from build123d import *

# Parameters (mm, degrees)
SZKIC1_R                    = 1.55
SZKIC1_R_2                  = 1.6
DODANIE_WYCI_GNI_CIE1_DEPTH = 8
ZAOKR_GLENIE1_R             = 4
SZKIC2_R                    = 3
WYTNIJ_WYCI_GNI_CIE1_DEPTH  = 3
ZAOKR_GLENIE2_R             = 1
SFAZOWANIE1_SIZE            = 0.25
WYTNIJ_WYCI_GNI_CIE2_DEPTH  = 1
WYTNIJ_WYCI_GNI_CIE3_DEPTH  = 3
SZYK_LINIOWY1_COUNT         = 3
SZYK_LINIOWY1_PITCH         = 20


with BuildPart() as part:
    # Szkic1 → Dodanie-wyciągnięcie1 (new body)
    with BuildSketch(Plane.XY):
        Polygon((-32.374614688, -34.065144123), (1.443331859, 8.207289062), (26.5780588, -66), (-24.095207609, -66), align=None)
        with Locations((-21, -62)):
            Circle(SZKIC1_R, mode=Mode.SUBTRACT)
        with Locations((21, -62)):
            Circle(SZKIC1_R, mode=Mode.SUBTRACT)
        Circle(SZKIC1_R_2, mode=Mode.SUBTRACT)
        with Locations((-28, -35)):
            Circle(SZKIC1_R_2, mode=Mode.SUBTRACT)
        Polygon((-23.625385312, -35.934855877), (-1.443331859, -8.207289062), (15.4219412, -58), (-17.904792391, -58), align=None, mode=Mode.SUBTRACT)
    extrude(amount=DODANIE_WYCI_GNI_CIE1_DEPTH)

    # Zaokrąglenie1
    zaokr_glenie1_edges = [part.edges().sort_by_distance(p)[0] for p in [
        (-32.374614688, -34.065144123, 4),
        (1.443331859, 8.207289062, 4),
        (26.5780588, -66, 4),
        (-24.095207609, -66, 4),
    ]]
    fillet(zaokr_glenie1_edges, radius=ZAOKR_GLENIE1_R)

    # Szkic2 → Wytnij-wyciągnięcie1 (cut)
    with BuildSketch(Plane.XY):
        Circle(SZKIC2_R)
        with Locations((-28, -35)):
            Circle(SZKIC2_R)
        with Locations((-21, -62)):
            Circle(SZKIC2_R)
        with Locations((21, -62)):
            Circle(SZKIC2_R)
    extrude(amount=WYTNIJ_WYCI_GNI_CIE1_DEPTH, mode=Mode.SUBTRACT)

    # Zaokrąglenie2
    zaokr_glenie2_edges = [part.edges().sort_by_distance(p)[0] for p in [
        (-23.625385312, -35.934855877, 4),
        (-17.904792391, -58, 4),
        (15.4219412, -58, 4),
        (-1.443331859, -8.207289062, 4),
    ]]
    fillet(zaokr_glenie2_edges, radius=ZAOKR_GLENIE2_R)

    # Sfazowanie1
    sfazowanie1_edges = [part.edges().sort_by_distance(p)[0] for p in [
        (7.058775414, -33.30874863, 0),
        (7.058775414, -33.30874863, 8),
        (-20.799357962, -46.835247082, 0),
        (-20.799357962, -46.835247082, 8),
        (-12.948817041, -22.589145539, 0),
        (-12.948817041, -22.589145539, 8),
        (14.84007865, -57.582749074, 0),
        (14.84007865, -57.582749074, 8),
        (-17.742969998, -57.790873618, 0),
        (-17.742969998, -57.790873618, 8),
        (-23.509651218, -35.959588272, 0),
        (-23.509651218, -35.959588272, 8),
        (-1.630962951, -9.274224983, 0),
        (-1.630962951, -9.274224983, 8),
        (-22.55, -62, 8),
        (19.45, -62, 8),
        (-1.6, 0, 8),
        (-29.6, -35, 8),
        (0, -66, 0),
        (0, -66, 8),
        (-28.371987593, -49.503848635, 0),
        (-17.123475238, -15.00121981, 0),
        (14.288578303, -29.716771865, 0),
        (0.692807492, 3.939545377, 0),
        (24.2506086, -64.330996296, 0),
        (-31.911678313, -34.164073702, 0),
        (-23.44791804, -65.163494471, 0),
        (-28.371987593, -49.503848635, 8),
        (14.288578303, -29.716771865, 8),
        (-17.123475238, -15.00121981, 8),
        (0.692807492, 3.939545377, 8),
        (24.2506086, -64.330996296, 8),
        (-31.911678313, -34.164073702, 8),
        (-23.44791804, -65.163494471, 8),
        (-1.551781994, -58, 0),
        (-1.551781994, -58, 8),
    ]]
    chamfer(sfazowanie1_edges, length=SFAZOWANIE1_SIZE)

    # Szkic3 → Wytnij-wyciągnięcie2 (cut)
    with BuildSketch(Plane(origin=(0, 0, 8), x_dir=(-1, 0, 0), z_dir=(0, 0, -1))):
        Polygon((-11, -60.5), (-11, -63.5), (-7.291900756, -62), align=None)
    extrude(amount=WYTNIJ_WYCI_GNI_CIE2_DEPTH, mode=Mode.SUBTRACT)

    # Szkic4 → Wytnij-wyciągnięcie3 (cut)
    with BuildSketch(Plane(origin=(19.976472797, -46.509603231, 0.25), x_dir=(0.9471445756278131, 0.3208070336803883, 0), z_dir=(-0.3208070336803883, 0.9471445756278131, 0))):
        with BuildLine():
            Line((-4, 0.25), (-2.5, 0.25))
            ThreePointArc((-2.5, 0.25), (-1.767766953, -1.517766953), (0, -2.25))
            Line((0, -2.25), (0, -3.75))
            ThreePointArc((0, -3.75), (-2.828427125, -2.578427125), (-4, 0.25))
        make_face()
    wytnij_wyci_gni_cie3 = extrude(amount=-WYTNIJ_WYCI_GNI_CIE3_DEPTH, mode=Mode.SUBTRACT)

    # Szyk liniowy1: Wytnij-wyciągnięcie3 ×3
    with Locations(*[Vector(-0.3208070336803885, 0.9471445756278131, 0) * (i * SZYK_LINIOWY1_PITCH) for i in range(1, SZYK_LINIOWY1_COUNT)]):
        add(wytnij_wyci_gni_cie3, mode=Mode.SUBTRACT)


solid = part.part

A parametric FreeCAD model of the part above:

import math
import FreeCAD as App
import Part
import Sketcher

V = App.Vector


def edges_at(feature, points):
    """Names of the edges that pass closest to the given points."""
    edges = feature.Shape.Edges
    near = lambda p: min(range(len(edges)), key=lambda i: edges[i].distToShape(Part.Vertex(*p))[0])
    return sorted({f"Edge{near(p) + 1}" for p in points})


def add_polygon(sketch, points):
    """Adds a closed chain of lines whose ends are joined by coincident constraints."""
    first, n = sketch.GeometryCount, len(points)
    for a, b in zip(points, points[1:] + points[:1]):
        sketch.addGeometry(Part.LineSegment(App.Vector(*a, 0), App.Vector(*b, 0)), False)
    for i in range(n):
        sketch.addConstraint(Sketcher.Constraint("Coincident", first + i, 2, first + (i + 1) % n, 1))

doc = App.newDocument("Part")
params = doc.addObject("Spreadsheet::Sheet", "Params")
for row, (alias, value) in enumerate([
    ("sketch1_diameter", "3.1 mm"),
    ("sketch1_diameter2", "3.1 mm"),
    ("sketch1_diameter3", "3.2 mm"),
    ("sketch1_diameter4", "3.2 mm"),
    ("pad1_length", "8 mm"),
    ("fillet_radius", "4 mm"),
    ("sketch2_diameter", "6 mm"),
    ("pocket1_length", "3 mm"),
    ("fillet2_radius", "1 mm"),
    ("chamfer_size", "0.25 mm"),
    ("sketch3_height", "3 mm"),
    ("sketch3_length", "4 mm"),
    ("pocket2_length", "1 mm"),
    ("sketch4_radius", "4 mm"),
    ("sketch4_radius2", "2.5 mm"),
    ("pocket3_length", "3 mm"),
    ("linearpattern_pitch", "20 mm"),
], start=1):
    params.set(f"A{row}", alias)
    params.set(f"B{row}", "=" + value)
    params.setAlias(f"B{row}", alias)

body = doc.addObject("PartDesign::Body", "Body")

sketch1 = body.newObject("Sketcher::SketchObject", "Sketch")
sketch1.AttachmentSupport = (doc.getObject("XY_Plane"), [""])
sketch1.MapMode = "FlatFace"
add_polygon(sketch1, [(1.443332, 8.207289), (-32.374615, -34.065144), (-24.095208, -66), (26.578059, -66)])
sketch1.addGeometry(Part.Circle(V(21, -62, 0), V(0, 0, 1), 1.55), False)
sketch1.addGeometry(Part.Circle(V(-21, -62, 0), V(0, 0, 1), 1.55), False)
add_polygon(sketch1, [(-23.625385, -35.934856), (-1.443332, -8.207289), (15.421941, -58), (-17.904792, -58)])
sketch1.addGeometry(Part.Circle(V(-28, -35, 0), V(0, 0, 1), 1.6), False)
sketch1.addGeometry(Part.Circle(V(0, 0, 0), V(0, 0, 1), 1.6), False)
sketch1.addConstraint([
    Sketcher.Constraint("Horizontal", 2),
    Sketcher.Constraint("Horizontal", 8),
    Sketcher.Constraint("Coincident", 11, 3, -1, 1),
    Sketcher.Constraint("Diameter", 4, 3.1),
    Sketcher.Constraint("Diameter", 5, 3.1),
    Sketcher.Constraint("Diameter", 10, 3.2),
    Sketcher.Constraint("Diameter", 11, 3.2),
    Sketcher.Constraint("DistanceX", -1, 1, 4, 3, 21.0),
    Sketcher.Constraint("DistanceY", 4, 3, -1, 1, 62.0),
    Sketcher.Constraint("DistanceX", 5, 3, -1, 1, 21.0),
    Sketcher.Constraint("DistanceY", 5, 3, -1, 1, 62.0),
    Sketcher.Constraint("DistanceX", 10, 3, -1, 1, 28.0),
    Sketcher.Constraint("DistanceY", 10, 3, -1, 1, 35.0),
    Sketcher.Constraint("DistanceY", 1, 2, -1, 1, 66.0),
    Sketcher.Constraint("DistanceY", 7, 2, -1, 1, 58.0),
    Sketcher.Constraint("Distance", 0, 54.135128),
    Sketcher.Constraint("Distance", 1, 32.990659),
    Sketcher.Constraint("Distance", 3, 78.348428),
    Sketcher.Constraint("Distance", 6, 35.508611),
    Sketcher.Constraint("DistanceX", 2, 1, 2, 2, 50.673266),
    Sketcher.Constraint("DistanceX", 8, 2, 8, 1, 33.326734),
    Sketcher.Constraint("DistanceX", -1, 1, 2, 2, 26.578059),
    Sketcher.Constraint("DistanceX", -1, 1, 3, 2, 1.443332),
    Sketcher.Constraint("DistanceX", 6, 2, -1, 1, 1.443332),
    Sketcher.Constraint("DistanceY", 6, 2, -1, 1, 8.207289),
    Sketcher.Constraint("DistanceX", -1, 1, 7, 2, 15.421941),
    Sketcher.Constraint("DistanceX", 0, 2, 9, 2, 8.749229),
])
sketch1.setExpression("Constraints[11]", "Params.sketch1_diameter")
sketch1.setExpression("Constraints[12]", "Params.sketch1_diameter2")
sketch1.setExpression("Constraints[13]", "Params.sketch1_diameter3")
sketch1.setExpression("Constraints[14]", "Params.sketch1_diameter4")
pad1 = body.newObject("PartDesign::Pad", "Pad")
pad1.Profile = sketch1
pad1.setExpression("Length", "Params.pad1_length")
doc.recompute()

fillet = body.newObject("PartDesign::Fillet", "Fillet")
fillet.Base = (pad1, edges_at(pad1, [
    (-32.375, -34.065, 4),
    (1.443, 8.207, 4),
    (26.578, -66, 4),
    (-24.095, -66, 4),
]))
fillet.setExpression("Radius", "Params.fillet_radius")

sketch2 = body.newObject("Sketcher::SketchObject", "Sketch001")
sketch2.AttachmentSupport = (doc.getObject("XY_Plane"), [""])
sketch2.MapMode = "FlatFace"
sketch2.addGeometry([
    Part.Circle(V(0, 0, 0), V(0, 0, 1), 3),
    Part.Circle(V(-28, -35, 0), V(0, 0, 1), 3),
    Part.Circle(V(-21, -62, 0), V(0, 0, 1), 3),
    Part.Circle(V(21, -62, 0), V(0, 0, 1), 3),
], False)
sketch2.addConstraint([
    Sketcher.Constraint("Coincident", 0, 3, -1, 1),
    Sketcher.Constraint("Equal", 0, 1),
    Sketcher.Constraint("Equal", 1, 2),
    Sketcher.Constraint("Equal", 2, 3),
    Sketcher.Constraint("Symmetric", 2, 3, 3, 3, -2),
    Sketcher.Constraint("Diameter", 0, 6.0),
    Sketcher.Constraint("DistanceX", 1, 3, -1, 1, 28.0),
    Sketcher.Constraint("DistanceY", 1, 3, -1, 1, 35.0),
    Sketcher.Constraint("DistanceX", 2, 3, -1, 1, 21.0),
    Sketcher.Constraint("DistanceY", 2, 3, -1, 1, 62.0),
])
sketch2.setExpression("Constraints[5]", "Params.sketch2_diameter")
pocket1 = body.newObject("PartDesign::Pocket", "Pocket")
pocket1.Profile = sketch2
pocket1.setExpression("Length", "Params.pocket1_length")
pocket1.Reversed = True
doc.recompute()

fillet2 = body.newObject("PartDesign::Fillet", "Fillet001")
fillet2.Base = (pocket1, edges_at(pocket1, [
    (-23.625, -35.935, 4),
    (-17.905, -58, 4),
    (15.422, -58, 4),
    (-1.443, -8.207, 4),
]))
fillet2.setExpression("Radius", "Params.fillet2_radius")
doc.recompute()

chamfer = body.newObject("PartDesign::Chamfer", "Chamfer")
chamfer.Base = (fillet2, edges_at(fillet2, [
    (7.059, -33.309, 0),
    (7.059, -33.309, 8),
    (-20.799, -46.835, 0),
    (-20.799, -46.835, 8),
    (-12.949, -22.589, 0),
    (-12.949, -22.589, 8),
    (14.84, -57.583, 0),
    (14.84, -57.583, 8),
    (-17.743, -57.791, 0),
    (-17.743, -57.791, 8),
    (-23.51, -35.96, 0),
    (-23.51, -35.96, 8),
    (-1.631, -9.274, 0),
    (-1.631, -9.274, 8),
    (-22.55, -62, 8),
    (19.45, -62, 8),
    (-1.6, 0, 8),
    (-29.6, -35, 8),
    (0, -66, 0),
    (0, -66, 8),
    (-28.372, -49.504, 0),
    (-17.123, -15.001, 0),
    (14.289, -29.717, 0),
    (0.693, 3.94, 0),
    (24.251, -64.331, 0),
    (-31.912, -34.164, 0),
    (-23.448, -65.163, 0),
    (-28.372, -49.504, 8),
    (14.289, -29.717, 8),
    (-17.123, -15.001, 8),
    (0.693, 3.94, 8),
    (24.251, -64.331, 8),
    (-31.912, -34.164, 8),
    (-23.448, -65.163, 8),
    (-1.552, -58, 0),
    (-1.552, -58, 8),
]))
chamfer.setExpression("Size", "Params.chamfer_size")

sketch3 = body.newObject("Sketcher::SketchObject", "Sketch002")
sketch3.AttachmentSupport = (doc.getObject("XY_Plane"), [""])
sketch3.MapMode = "FlatFace"
sketch3.AttachmentOffset = App.Placement(V(0, 0, 8), App.Rotation())
add_polygon(sketch3, [(11, -60.5), (11, -63.5), (7.3, -62)])
sketch3.addConstraint([
    Sketcher.Constraint("Vertical", 0),
    Sketcher.Constraint("Equal", 1, 2),
    Sketcher.Constraint("DistanceY", 0, 2, 0, 1, 3.0),
    Sketcher.Constraint("Distance", 1, 4.0),
    Sketcher.Constraint("DistanceX", -1, 1, 0, 2, 11.0),
    Sketcher.Constraint("DistanceY", 1, 2, -1, 1, 62.0),
])
sketch3.setExpression("Constraints[5]", "Params.sketch3_height")
sketch3.setExpression("Constraints[6]", "Params.sketch3_length")
pocket2 = body.newObject("PartDesign::Pocket", "Pocket001")
pocket2.Profile = sketch3
pocket2.setExpression("Length", "Params.pocket2_length")

sketch4 = body.newObject("Sketcher::SketchObject", "Sketch003")
sketch4.Placement = App.Placement(V(19.976473, -46.509603, 0.25), App.Rotation(V(0.947144576, 0.320807034, 0), V(0, 0, -1.000000001), V(-0.320807034, 0.947144576, 0), "ZXY"))
sketch4.addGeometry([
    Part.LineSegment(V(-2.5, 0.2, 0), V(-4, 0.2, 0)),
    Part.ArcOfCircle(Part.Circle(V(0, 0.2, 0), V(0, 0, 1), 4), math.radians(180), math.radians(270)),
    Part.LineSegment(V(0, -3.8, 0), V(0, -2.3, 0)),
    Part.ArcOfCircle(Part.Circle(V(0, 0.2, 0), V(0, 0, 1), 2.5), math.radians(180), math.radians(270)),
], False)
sketch4.addConstraint([
    Sketcher.Constraint("Coincident", 0, 2, 1, 1),
    Sketcher.Constraint("Coincident", 1, 2, 2, 1),
    Sketcher.Constraint("Coincident", 2, 2, 3, 2),
    Sketcher.Constraint("Coincident", 3, 1, 0, 1),
    Sketcher.Constraint("Horizontal", 0),
    Sketcher.Constraint("Vertical", 2),
    Sketcher.Constraint("Coincident", 3, 3, 1, 3),
    Sketcher.Constraint("PointOnObject", 1, 3, -2),
    Sketcher.Constraint("PointOnObject", 1, 2, -2),
    Sketcher.Constraint("Horizontal", 3, 3, 0, 2),
    Sketcher.Constraint("Radius", 1, 4.0),
    Sketcher.Constraint("Radius", 3, 2.5),
    Sketcher.Constraint("DistanceY", -1, 1, 1, 3, 0.25),
])
sketch4.setExpression("Constraints[10]", "Params.sketch4_radius")
sketch4.setExpression("Constraints[11]", "Params.sketch4_radius2")
pocket3 = body.newObject("PartDesign::Pocket", "Pocket002")
pocket3.Profile = sketch4
pocket3.setExpression("Length", "Params.pocket3_length")
doc.recompute()

datumline = body.newObject("PartDesign::Line", "DatumLine")
datumline.Placement = App.Placement(V(0, 0, 0), App.Rotation(V(0, 0, 1), V(-0.320807034, 0.947144576, 0)))
linearpattern = body.newObject("PartDesign::LinearPattern", "LinearPattern")
linearpattern.Originals = [pocket3]
linearpattern.Direction = (datumline, [""])
linearpattern.Mode = "offset"
linearpattern.setExpression("Offset", "Params.linearpattern_pitch")
linearpattern.Occurrences = 3
body.Tip = linearpattern

doc.recompute()
